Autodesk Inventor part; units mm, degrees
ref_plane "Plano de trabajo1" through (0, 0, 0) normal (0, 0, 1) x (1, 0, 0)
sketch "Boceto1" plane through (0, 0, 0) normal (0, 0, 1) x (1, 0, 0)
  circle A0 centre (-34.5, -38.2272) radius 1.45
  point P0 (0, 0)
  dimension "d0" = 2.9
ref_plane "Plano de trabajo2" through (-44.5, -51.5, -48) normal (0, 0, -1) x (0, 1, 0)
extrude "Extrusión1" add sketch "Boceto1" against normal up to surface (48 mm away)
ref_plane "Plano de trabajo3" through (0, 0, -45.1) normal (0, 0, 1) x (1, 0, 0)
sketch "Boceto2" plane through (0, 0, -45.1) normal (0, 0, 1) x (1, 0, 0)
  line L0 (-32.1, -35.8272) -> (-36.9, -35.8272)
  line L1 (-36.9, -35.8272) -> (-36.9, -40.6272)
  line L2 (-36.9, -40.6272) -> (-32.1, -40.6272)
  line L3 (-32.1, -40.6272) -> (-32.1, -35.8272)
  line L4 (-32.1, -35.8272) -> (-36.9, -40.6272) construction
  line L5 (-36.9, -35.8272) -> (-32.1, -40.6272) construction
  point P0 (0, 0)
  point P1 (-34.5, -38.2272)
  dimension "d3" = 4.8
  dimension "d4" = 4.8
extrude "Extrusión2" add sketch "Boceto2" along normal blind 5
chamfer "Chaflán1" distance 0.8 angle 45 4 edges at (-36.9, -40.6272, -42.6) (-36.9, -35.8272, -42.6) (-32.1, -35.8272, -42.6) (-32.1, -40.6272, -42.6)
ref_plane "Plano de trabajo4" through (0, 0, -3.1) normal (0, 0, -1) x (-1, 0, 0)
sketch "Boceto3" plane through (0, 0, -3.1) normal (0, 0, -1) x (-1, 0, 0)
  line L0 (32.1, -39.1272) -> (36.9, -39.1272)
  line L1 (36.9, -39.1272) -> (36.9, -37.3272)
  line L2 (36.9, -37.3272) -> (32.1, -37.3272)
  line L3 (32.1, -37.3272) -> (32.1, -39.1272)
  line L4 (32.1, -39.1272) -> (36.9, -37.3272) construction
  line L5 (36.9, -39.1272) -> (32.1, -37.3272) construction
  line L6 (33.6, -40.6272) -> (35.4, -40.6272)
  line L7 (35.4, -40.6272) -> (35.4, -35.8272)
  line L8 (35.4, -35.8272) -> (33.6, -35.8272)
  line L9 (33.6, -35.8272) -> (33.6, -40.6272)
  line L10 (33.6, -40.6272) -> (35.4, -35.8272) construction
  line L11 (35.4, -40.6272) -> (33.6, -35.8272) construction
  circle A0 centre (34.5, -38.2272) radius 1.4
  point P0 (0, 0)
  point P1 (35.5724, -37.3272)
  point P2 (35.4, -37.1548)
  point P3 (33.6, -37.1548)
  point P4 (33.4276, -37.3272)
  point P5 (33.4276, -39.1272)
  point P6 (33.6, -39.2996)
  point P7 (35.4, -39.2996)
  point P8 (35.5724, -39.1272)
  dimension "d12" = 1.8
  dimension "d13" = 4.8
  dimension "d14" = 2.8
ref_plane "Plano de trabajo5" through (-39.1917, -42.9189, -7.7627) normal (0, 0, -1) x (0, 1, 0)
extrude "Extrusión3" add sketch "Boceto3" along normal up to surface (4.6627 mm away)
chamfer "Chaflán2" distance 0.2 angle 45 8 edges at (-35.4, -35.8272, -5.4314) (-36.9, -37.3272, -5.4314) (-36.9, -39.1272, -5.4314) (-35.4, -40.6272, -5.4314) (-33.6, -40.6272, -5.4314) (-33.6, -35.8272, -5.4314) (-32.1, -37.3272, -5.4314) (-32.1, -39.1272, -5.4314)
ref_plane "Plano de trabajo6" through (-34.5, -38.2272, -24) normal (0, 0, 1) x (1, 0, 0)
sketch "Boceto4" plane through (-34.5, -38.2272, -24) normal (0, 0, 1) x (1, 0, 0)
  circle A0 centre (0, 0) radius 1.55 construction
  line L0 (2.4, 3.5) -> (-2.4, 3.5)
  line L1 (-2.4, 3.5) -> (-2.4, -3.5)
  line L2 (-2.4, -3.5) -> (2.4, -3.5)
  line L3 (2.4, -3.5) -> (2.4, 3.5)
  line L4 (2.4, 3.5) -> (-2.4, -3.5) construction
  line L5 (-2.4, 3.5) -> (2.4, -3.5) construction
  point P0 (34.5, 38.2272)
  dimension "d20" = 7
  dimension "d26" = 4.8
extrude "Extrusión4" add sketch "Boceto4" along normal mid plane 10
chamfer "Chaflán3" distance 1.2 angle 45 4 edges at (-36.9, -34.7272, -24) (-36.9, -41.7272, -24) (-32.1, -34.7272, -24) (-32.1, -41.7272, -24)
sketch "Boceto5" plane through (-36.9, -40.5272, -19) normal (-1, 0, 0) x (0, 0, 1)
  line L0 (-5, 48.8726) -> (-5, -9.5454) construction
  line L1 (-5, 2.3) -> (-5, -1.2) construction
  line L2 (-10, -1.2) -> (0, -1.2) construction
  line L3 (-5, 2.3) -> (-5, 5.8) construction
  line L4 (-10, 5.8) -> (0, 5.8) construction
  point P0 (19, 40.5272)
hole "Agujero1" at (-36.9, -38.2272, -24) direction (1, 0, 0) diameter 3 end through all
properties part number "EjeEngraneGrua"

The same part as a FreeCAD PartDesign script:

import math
import FreeCAD as App
import Part
import Sketcher
from FreeCAD import Vector
Q = App.Units.Quantity


def edges_at(feature, points):
    """Names of the edges that pass closest to the given points."""
    edges = feature.Shape.Edges
    near = lambda p: min(range(len(edges)), key=lambda i: edges[i].distToShape(Part.Vertex(*p))[0])
    return sorted({f"Edge{near(p) + 1}" for p in points})


def add_polygon(sketch, points):
    """Adds a closed chain of lines whose ends are joined by coincident constraints."""
    first, n = sketch.GeometryCount, len(points)
    for a, b in zip(points, points[1:] + points[:1]):
        sketch.addGeometry(Part.LineSegment(App.Vector(*a, 0), App.Vector(*b, 0)), False)
    for i in range(n):
        sketch.addConstraint(Sketcher.Constraint("Coincident", first + i, 2, first + (i + 1) % n, 1))

doc = App.newDocument("Part")
body = doc.addObject("PartDesign::Body", "Body")

# Sketch on XY plane
sketch1 = body.newObject("Sketcher::SketchObject", "Sketch")
sketch1.AttachmentSupport = (doc.getObject("XY_Plane"), [""])
sketch1.MapMode = "FlatFace"
sketch1.addGeometry(Part.Circle(Vector(-34.5, -38.2272, 0), Vector(0, 0, 1), 1.45), False)
sketch1.addConstraint(Sketcher.Constraint("Diameter", 0, Q("2.9 mm")))
sketch1.addConstraint(Sketcher.Constraint("DistanceX", 0, 3, -1, 1, Q("34.5 mm")))
sketch1.addConstraint(Sketcher.Constraint("DistanceY", 0, 3, -1, 1, Q("38.2272 mm")))
pad1 = body.newObject("PartDesign::Pad", "Pad")
pad1.Profile = sketch1
pad1.Length = 48
pad1.Reversed = True

# Sketch on XY plane
sketch2 = body.newObject("Sketcher::SketchObject", "Sketch001")
sketch2.AttachmentSupport = (doc.getObject("XY_Plane"), [""])
sketch2.MapMode = "FlatFace"
sketch2.AttachmentOffset = App.Placement(Vector(0, 0, -45.1), App.Rotation())
add_polygon(sketch2, [(-32.1, -40.6272), (-32.1, -35.8272), (-36.9, -35.8272), (-36.9, -40.6272)])  # lines 0-3
sketch2.addConstraint(Sketcher.Constraint("Vertical", 0))
sketch2.addConstraint(Sketcher.Constraint("Horizontal", 1))
sketch2.addConstraint(Sketcher.Constraint("Vertical", 2))
sketch2.addConstraint(Sketcher.Constraint("Horizontal", 3))
sketch2.addConstraint(Sketcher.Constraint("Equal", 3, 0))
sketch2.addConstraint(Sketcher.Constraint("DistanceX", 1, 2, 1, 1, Q("4.8 mm")))
sketch2.addConstraint(Sketcher.Constraint("DistanceX", 0, 2, -1, 1, Q("32.1 mm")))
sketch2.addConstraint(Sketcher.Constraint("DistanceY", 0, 2, -1, 1, Q("35.8272 mm")))
pad2 = body.newObject("PartDesign::Pad", "Pad001")
pad2.Profile = sketch2
pad2.Length = 5
doc.recompute()

chamfer = body.newObject("PartDesign::Chamfer", "Chamfer")
chamfer.Base = (pad2, edges_at(pad2, [
    (-36.9, -40.627, -42.6),
    (-36.9, -35.827, -42.6),
    (-32.1, -35.827, -42.6),
    (-32.1, -40.627, -42.6),
]))
chamfer.Size = 0.8

# Sketch on XY plane
sketch3 = body.newObject("Sketcher::SketchObject", "Sketch002")
sketch3.AttachmentSupport = (doc.getObject("XY_Plane"), [""])
sketch3.MapMode = "FlatFace"
sketch3.AttachmentOffset = App.Placement(Vector(0, 0, -3.1), App.Rotation())
sketch3.addGeometry(Part.LineSegment(Vector(-32.1, -37.3272, 0), Vector(-32.1, -39.1272, 0)), False)
sketch3.addGeometry(Part.LineSegment(Vector(-32.1, -39.1272, 0), Vector(-33.427619, -39.1272, 0)), False)
sketch3.addGeometry(Part.ArcOfCircle(Part.Circle(Vector(-34.5, -38.2272, 0), Vector(0, 0, 1), 1.4), math.radians(-49.994799), math.radians(-40.005201)), False)
sketch3.addGeometry(Part.LineSegment(Vector(-33.6, -39.299581, 0), Vector(-33.6, -40.6272, 0)), False)
sketch3.addGeometry(Part.LineSegment(Vector(-33.6, -40.6272, 0), Vector(-35.4, -40.6272, 0)), False)
sketch3.addGeometry(Part.LineSegment(Vector(-35.4, -40.6272, 0), Vector(-35.4, -39.299581, 0)), False)
sketch3.addGeometry(Part.ArcOfCircle(Part.Circle(Vector(-34.5, -38.2272, 0), Vector(0, 0, 1), 1.4), math.radians(-139.994799), math.radians(-130.005201)), False)
sketch3.addGeometry(Part.LineSegment(Vector(-35.572381, -39.1272, 0), Vector(-36.9, -39.1272, 0)), False)
sketch3.addGeometry(Part.LineSegment(Vector(-36.9, -39.1272, 0), Vector(-36.9, -37.3272, 0)), False)
sketch3.addGeometry(Part.LineSegment(Vector(-36.9, -37.3272, 0), Vector(-35.572381, -37.3272, 0)), False)
sketch3.addGeometry(Part.ArcOfCircle(Part.Circle(Vector(-34.5, -38.2272, 0), Vector(0, 0, 1), 1.4), math.radians(130.005201), math.radians(139.994799)), False)
sketch3.addGeometry(Part.LineSegment(Vector(-35.4, -37.154819, 0), Vector(-35.4, -35.8272, 0)), False)
sketch3.addGeometry(Part.LineSegment(Vector(-35.4, -35.8272, 0), Vector(-33.6, -35.8272, 0)), False)
sketch3.addGeometry(Part.LineSegment(Vector(-33.6, -35.8272, 0), Vector(-33.6, -37.154819, 0)), False)
sketch3.addGeometry(Part.ArcOfCircle(Part.Circle(Vector(-34.5, -38.2272, 0), Vector(0, 0, 1), 1.4), math.radians(40.005201), math.radians(49.994799)), False)
sketch3.addGeometry(Part.LineSegment(Vector(-33.427619, -37.3272, 0), Vector(-32.1, -37.3272, 0)), False)
sketch3.addConstraint(Sketcher.Constraint("Coincident", 0, 2, 1, 1))
sketch3.addConstraint(Sketcher.Constraint("Coincident", 1, 2, 2, 2))
sketch3.addConstraint(Sketcher.Constraint("Coincident", 2, 1, 3, 1))
sketch3.addConstraint(Sketcher.Constraint("Coincident", 3, 2, 4, 1))
sketch3.addConstraint(Sketcher.Constraint("Coincident", 4, 2, 5, 1))
sketch3.addConstraint(Sketcher.Constraint("Coincident", 5, 2, 6, 2))
sketch3.addConstraint(Sketcher.Constraint("Coincident", 6, 1, 7, 1))
sketch3.addConstraint(Sketcher.Constraint("Coincident", 7, 2, 8, 1))
sketch3.addConstraint(Sketcher.Constraint("Coincident", 8, 2, 9, 1))
sketch3.addConstraint(Sketcher.Constraint("Coincident", 9, 2, 10, 2))
sketch3.addConstraint(Sketcher.Constraint("Coincident", 10, 1, 11, 1))
sketch3.addConstraint(Sketcher.Constraint("Coincident", 11, 2, 12, 1))
sketch3.addConstraint(Sketcher.Constraint("Coincident", 12, 2, 13, 1))
sketch3.addConstraint(Sketcher.Constraint("Coincident", 13, 2, 14, 2))
sketch3.addConstraint(Sketcher.Constraint("Coincident", 14, 1, 15, 1))
sketch3.addConstraint(Sketcher.Constraint("Coincident", 15, 2, 0, 1))
sketch3.addConstraint(Sketcher.Constraint("Vertical", 0))
sketch3.addConstraint(Sketcher.Constraint("Horizontal", 1))
sketch3.addConstraint(Sketcher.Constraint("Vertical", 3))
sketch3.addConstraint(Sketcher.Constraint("Horizontal", 4))
sketch3.addConstraint(Sketcher.Constraint("Vertical", 5))
sketch3.addConstraint(Sketcher.Constraint("Horizontal", 7))
sketch3.addConstraint(Sketcher.Constraint("Vertical", 8))
sketch3.addConstraint(Sketcher.Constraint("Horizontal", 9))
sketch3.addConstraint(Sketcher.Constraint("Vertical", 11))
sketch3.addConstraint(Sketcher.Constraint("Horizontal", 12))
sketch3.addConstraint(Sketcher.Constraint("Vertical", 13))
sketch3.addConstraint(Sketcher.Constraint("Horizontal", 15))
sketch3.addConstraint(Sketcher.Constraint("Coincident", 6, 3, 2, 3))
sketch3.addConstraint(Sketcher.Constraint("Coincident", 10, 3, 2, 3))
sketch3.addConstraint(Sketcher.Constraint("Coincident", 14, 3, 2, 3))
sketch3.addConstraint(Sketcher.Constraint("Equal", 2, 6))
sketch3.addConstraint(Sketcher.Constraint("Equal", 6, 10))
sketch3.addConstraint(Sketcher.Constraint("Equal", 10, 14))
sketch3.addConstraint(Sketcher.Constraint("Horizontal", 2, 1, 5, 2))
sketch3.addConstraint(Sketcher.Constraint("Horizontal", 1, 2, 6, 1))
sketch3.addConstraint(Sketcher.Constraint("Horizontal", 10, 1, 13, 2))
sketch3.addConstraint(Sketcher.Constraint("Horizontal", 9, 2, 14, 1))
sketch3.addConstraint(Sketcher.Constraint("Vertical", 6, 1, 9, 2))
sketch3.addConstraint(Sketcher.Constraint("Vertical", 5, 2, 10, 1))
sketch3.addConstraint(Sketcher.Constraint("Equal", 1, 7))
sketch3.addConstraint(Sketcher.Constraint("Equal", 12, 0))
sketch3.addConstraint(Sketcher.Constraint("Equal", 15, 3))
sketch3.addConstraint(Sketcher.Constraint("Equal", 5, 11))
sketch3.addConstraint(Sketcher.Constraint("Radius", 2, Q("1.4 mm")))
sketch3.addConstraint(Sketcher.Constraint("DistanceX", 4, 2, 4, 1, Q("1.8 mm")))
sketch3.addConstraint(Sketcher.Constraint("DistanceX", 2, 3, -1, 1, Q("34.5 mm")))
sketch3.addConstraint(Sketcher.Constraint("DistanceX", 0, 2, -1, 1, Q("32.1 mm")))
sketch3.addConstraint(Sketcher.Constraint("DistanceY", 2, 3, -1, 1, Q("38.2272 mm")))
pad3 = body.newObject("PartDesign::Pad", "Pad002")
pad3.Profile = sketch3
pad3.Length = 4.6627
pad3.Reversed = True
doc.recompute()

chamfer2 = body.newObject("PartDesign::Chamfer", "Chamfer001")
chamfer2.Base = (pad3, edges_at(pad3, [
    (-35.4, -35.827, -5.431),
    (-36.9, -37.327, -5.431),
    (-36.9, -39.127, -5.431),
    (-35.4, -40.627, -5.431),
    (-33.6, -40.627, -5.431),
    (-33.6, -35.827, -5.431),
    (-32.1, -37.327, -5.431),
    (-32.1, -39.127, -5.431),
]))
chamfer2.Size = 0.2

# Sketch on XY plane
sketch4 = body.newObject("Sketcher::SketchObject", "Sketch003")
sketch4.AttachmentSupport = (doc.getObject("XY_Plane"), [""])
sketch4.MapMode = "FlatFace"
sketch4.AttachmentOffset = App.Placement(Vector(0, 0, -24), App.Rotation())
add_polygon(sketch4, [(-32.1, -41.7272), (-32.1, -34.7272), (-36.9, -34.7272), (-36.9, -41.7272)])  # lines 0-3
sketch4.addConstraint(Sketcher.Constraint("Vertical", 0))
sketch4.addConstraint(Sketcher.Constraint("Horizontal", 1))
sketch4.addConstraint(Sketcher.Constraint("Vertical", 2))
sketch4.addConstraint(Sketcher.Constraint("Horizontal", 3))
sketch4.addConstraint(Sketcher.Constraint("DistanceY", 0, 1, 0, 2, Q("7 mm")))
sketch4.addConstraint(Sketcher.Constraint("DistanceX", 1, 2, 1, 1, Q("4.8 mm")))
sketch4.addConstraint(Sketcher.Constraint("DistanceX", 0, 2, -1, 1, Q("32.1 mm")))
sketch4.addConstraint(Sketcher.Constraint("DistanceY", 0, 2, -1, 1, Q("34.7272 mm")))
pad4 = body.newObject("PartDesign::Pad", "Pad003")
pad4.Profile = sketch4
pad4.Length = 10
pad4.Midplane = True
doc.recompute()

chamfer3 = body.newObject("PartDesign::Chamfer", "Chamfer002")
chamfer3.Base = (pad4, edges_at(pad4, [
    (-36.9, -34.727, -24),
    (-36.9, -41.727, -24),
    (-32.1, -34.727, -24),
    (-32.1, -41.727, -24),
]))
chamfer3.Size = 1.2

# Sketch on YZ plane
sketch5 = body.newObject("Sketcher::SketchObject", "Sketch004")
sketch5.AttachmentSupport = (doc.getObject("YZ_Plane"), [""])
sketch5.MapMode = "FlatFace"
sketch5.AttachmentOffset = App.Placement(Vector(0, 0, -36.9), App.Rotation())
sketch5.addGeometry(Part.Circle(Vector(-38.2272, -24, 0), Vector(0, 0, 1), 1.5), False)
sketch5.addConstraint(Sketcher.Constraint("Diameter", 0, Q("3 mm")))
sketch5.addConstraint(Sketcher.Constraint("DistanceY", 0, 3, -1, 1, Q("24 mm")))
sketch5.addConstraint(Sketcher.Constraint("DistanceX", 0, 3, -1, 1, Q("38.2272 mm")))
doc.recompute()
hole = body.newObject("PartDesign::Hole", "Hole")
hole.Profile = sketch5
hole.ThreadType = "None"
hole.Diameter = 3
hole.DepthType = "ThroughAll"
hole.Reversed = True

doc.recompute()
